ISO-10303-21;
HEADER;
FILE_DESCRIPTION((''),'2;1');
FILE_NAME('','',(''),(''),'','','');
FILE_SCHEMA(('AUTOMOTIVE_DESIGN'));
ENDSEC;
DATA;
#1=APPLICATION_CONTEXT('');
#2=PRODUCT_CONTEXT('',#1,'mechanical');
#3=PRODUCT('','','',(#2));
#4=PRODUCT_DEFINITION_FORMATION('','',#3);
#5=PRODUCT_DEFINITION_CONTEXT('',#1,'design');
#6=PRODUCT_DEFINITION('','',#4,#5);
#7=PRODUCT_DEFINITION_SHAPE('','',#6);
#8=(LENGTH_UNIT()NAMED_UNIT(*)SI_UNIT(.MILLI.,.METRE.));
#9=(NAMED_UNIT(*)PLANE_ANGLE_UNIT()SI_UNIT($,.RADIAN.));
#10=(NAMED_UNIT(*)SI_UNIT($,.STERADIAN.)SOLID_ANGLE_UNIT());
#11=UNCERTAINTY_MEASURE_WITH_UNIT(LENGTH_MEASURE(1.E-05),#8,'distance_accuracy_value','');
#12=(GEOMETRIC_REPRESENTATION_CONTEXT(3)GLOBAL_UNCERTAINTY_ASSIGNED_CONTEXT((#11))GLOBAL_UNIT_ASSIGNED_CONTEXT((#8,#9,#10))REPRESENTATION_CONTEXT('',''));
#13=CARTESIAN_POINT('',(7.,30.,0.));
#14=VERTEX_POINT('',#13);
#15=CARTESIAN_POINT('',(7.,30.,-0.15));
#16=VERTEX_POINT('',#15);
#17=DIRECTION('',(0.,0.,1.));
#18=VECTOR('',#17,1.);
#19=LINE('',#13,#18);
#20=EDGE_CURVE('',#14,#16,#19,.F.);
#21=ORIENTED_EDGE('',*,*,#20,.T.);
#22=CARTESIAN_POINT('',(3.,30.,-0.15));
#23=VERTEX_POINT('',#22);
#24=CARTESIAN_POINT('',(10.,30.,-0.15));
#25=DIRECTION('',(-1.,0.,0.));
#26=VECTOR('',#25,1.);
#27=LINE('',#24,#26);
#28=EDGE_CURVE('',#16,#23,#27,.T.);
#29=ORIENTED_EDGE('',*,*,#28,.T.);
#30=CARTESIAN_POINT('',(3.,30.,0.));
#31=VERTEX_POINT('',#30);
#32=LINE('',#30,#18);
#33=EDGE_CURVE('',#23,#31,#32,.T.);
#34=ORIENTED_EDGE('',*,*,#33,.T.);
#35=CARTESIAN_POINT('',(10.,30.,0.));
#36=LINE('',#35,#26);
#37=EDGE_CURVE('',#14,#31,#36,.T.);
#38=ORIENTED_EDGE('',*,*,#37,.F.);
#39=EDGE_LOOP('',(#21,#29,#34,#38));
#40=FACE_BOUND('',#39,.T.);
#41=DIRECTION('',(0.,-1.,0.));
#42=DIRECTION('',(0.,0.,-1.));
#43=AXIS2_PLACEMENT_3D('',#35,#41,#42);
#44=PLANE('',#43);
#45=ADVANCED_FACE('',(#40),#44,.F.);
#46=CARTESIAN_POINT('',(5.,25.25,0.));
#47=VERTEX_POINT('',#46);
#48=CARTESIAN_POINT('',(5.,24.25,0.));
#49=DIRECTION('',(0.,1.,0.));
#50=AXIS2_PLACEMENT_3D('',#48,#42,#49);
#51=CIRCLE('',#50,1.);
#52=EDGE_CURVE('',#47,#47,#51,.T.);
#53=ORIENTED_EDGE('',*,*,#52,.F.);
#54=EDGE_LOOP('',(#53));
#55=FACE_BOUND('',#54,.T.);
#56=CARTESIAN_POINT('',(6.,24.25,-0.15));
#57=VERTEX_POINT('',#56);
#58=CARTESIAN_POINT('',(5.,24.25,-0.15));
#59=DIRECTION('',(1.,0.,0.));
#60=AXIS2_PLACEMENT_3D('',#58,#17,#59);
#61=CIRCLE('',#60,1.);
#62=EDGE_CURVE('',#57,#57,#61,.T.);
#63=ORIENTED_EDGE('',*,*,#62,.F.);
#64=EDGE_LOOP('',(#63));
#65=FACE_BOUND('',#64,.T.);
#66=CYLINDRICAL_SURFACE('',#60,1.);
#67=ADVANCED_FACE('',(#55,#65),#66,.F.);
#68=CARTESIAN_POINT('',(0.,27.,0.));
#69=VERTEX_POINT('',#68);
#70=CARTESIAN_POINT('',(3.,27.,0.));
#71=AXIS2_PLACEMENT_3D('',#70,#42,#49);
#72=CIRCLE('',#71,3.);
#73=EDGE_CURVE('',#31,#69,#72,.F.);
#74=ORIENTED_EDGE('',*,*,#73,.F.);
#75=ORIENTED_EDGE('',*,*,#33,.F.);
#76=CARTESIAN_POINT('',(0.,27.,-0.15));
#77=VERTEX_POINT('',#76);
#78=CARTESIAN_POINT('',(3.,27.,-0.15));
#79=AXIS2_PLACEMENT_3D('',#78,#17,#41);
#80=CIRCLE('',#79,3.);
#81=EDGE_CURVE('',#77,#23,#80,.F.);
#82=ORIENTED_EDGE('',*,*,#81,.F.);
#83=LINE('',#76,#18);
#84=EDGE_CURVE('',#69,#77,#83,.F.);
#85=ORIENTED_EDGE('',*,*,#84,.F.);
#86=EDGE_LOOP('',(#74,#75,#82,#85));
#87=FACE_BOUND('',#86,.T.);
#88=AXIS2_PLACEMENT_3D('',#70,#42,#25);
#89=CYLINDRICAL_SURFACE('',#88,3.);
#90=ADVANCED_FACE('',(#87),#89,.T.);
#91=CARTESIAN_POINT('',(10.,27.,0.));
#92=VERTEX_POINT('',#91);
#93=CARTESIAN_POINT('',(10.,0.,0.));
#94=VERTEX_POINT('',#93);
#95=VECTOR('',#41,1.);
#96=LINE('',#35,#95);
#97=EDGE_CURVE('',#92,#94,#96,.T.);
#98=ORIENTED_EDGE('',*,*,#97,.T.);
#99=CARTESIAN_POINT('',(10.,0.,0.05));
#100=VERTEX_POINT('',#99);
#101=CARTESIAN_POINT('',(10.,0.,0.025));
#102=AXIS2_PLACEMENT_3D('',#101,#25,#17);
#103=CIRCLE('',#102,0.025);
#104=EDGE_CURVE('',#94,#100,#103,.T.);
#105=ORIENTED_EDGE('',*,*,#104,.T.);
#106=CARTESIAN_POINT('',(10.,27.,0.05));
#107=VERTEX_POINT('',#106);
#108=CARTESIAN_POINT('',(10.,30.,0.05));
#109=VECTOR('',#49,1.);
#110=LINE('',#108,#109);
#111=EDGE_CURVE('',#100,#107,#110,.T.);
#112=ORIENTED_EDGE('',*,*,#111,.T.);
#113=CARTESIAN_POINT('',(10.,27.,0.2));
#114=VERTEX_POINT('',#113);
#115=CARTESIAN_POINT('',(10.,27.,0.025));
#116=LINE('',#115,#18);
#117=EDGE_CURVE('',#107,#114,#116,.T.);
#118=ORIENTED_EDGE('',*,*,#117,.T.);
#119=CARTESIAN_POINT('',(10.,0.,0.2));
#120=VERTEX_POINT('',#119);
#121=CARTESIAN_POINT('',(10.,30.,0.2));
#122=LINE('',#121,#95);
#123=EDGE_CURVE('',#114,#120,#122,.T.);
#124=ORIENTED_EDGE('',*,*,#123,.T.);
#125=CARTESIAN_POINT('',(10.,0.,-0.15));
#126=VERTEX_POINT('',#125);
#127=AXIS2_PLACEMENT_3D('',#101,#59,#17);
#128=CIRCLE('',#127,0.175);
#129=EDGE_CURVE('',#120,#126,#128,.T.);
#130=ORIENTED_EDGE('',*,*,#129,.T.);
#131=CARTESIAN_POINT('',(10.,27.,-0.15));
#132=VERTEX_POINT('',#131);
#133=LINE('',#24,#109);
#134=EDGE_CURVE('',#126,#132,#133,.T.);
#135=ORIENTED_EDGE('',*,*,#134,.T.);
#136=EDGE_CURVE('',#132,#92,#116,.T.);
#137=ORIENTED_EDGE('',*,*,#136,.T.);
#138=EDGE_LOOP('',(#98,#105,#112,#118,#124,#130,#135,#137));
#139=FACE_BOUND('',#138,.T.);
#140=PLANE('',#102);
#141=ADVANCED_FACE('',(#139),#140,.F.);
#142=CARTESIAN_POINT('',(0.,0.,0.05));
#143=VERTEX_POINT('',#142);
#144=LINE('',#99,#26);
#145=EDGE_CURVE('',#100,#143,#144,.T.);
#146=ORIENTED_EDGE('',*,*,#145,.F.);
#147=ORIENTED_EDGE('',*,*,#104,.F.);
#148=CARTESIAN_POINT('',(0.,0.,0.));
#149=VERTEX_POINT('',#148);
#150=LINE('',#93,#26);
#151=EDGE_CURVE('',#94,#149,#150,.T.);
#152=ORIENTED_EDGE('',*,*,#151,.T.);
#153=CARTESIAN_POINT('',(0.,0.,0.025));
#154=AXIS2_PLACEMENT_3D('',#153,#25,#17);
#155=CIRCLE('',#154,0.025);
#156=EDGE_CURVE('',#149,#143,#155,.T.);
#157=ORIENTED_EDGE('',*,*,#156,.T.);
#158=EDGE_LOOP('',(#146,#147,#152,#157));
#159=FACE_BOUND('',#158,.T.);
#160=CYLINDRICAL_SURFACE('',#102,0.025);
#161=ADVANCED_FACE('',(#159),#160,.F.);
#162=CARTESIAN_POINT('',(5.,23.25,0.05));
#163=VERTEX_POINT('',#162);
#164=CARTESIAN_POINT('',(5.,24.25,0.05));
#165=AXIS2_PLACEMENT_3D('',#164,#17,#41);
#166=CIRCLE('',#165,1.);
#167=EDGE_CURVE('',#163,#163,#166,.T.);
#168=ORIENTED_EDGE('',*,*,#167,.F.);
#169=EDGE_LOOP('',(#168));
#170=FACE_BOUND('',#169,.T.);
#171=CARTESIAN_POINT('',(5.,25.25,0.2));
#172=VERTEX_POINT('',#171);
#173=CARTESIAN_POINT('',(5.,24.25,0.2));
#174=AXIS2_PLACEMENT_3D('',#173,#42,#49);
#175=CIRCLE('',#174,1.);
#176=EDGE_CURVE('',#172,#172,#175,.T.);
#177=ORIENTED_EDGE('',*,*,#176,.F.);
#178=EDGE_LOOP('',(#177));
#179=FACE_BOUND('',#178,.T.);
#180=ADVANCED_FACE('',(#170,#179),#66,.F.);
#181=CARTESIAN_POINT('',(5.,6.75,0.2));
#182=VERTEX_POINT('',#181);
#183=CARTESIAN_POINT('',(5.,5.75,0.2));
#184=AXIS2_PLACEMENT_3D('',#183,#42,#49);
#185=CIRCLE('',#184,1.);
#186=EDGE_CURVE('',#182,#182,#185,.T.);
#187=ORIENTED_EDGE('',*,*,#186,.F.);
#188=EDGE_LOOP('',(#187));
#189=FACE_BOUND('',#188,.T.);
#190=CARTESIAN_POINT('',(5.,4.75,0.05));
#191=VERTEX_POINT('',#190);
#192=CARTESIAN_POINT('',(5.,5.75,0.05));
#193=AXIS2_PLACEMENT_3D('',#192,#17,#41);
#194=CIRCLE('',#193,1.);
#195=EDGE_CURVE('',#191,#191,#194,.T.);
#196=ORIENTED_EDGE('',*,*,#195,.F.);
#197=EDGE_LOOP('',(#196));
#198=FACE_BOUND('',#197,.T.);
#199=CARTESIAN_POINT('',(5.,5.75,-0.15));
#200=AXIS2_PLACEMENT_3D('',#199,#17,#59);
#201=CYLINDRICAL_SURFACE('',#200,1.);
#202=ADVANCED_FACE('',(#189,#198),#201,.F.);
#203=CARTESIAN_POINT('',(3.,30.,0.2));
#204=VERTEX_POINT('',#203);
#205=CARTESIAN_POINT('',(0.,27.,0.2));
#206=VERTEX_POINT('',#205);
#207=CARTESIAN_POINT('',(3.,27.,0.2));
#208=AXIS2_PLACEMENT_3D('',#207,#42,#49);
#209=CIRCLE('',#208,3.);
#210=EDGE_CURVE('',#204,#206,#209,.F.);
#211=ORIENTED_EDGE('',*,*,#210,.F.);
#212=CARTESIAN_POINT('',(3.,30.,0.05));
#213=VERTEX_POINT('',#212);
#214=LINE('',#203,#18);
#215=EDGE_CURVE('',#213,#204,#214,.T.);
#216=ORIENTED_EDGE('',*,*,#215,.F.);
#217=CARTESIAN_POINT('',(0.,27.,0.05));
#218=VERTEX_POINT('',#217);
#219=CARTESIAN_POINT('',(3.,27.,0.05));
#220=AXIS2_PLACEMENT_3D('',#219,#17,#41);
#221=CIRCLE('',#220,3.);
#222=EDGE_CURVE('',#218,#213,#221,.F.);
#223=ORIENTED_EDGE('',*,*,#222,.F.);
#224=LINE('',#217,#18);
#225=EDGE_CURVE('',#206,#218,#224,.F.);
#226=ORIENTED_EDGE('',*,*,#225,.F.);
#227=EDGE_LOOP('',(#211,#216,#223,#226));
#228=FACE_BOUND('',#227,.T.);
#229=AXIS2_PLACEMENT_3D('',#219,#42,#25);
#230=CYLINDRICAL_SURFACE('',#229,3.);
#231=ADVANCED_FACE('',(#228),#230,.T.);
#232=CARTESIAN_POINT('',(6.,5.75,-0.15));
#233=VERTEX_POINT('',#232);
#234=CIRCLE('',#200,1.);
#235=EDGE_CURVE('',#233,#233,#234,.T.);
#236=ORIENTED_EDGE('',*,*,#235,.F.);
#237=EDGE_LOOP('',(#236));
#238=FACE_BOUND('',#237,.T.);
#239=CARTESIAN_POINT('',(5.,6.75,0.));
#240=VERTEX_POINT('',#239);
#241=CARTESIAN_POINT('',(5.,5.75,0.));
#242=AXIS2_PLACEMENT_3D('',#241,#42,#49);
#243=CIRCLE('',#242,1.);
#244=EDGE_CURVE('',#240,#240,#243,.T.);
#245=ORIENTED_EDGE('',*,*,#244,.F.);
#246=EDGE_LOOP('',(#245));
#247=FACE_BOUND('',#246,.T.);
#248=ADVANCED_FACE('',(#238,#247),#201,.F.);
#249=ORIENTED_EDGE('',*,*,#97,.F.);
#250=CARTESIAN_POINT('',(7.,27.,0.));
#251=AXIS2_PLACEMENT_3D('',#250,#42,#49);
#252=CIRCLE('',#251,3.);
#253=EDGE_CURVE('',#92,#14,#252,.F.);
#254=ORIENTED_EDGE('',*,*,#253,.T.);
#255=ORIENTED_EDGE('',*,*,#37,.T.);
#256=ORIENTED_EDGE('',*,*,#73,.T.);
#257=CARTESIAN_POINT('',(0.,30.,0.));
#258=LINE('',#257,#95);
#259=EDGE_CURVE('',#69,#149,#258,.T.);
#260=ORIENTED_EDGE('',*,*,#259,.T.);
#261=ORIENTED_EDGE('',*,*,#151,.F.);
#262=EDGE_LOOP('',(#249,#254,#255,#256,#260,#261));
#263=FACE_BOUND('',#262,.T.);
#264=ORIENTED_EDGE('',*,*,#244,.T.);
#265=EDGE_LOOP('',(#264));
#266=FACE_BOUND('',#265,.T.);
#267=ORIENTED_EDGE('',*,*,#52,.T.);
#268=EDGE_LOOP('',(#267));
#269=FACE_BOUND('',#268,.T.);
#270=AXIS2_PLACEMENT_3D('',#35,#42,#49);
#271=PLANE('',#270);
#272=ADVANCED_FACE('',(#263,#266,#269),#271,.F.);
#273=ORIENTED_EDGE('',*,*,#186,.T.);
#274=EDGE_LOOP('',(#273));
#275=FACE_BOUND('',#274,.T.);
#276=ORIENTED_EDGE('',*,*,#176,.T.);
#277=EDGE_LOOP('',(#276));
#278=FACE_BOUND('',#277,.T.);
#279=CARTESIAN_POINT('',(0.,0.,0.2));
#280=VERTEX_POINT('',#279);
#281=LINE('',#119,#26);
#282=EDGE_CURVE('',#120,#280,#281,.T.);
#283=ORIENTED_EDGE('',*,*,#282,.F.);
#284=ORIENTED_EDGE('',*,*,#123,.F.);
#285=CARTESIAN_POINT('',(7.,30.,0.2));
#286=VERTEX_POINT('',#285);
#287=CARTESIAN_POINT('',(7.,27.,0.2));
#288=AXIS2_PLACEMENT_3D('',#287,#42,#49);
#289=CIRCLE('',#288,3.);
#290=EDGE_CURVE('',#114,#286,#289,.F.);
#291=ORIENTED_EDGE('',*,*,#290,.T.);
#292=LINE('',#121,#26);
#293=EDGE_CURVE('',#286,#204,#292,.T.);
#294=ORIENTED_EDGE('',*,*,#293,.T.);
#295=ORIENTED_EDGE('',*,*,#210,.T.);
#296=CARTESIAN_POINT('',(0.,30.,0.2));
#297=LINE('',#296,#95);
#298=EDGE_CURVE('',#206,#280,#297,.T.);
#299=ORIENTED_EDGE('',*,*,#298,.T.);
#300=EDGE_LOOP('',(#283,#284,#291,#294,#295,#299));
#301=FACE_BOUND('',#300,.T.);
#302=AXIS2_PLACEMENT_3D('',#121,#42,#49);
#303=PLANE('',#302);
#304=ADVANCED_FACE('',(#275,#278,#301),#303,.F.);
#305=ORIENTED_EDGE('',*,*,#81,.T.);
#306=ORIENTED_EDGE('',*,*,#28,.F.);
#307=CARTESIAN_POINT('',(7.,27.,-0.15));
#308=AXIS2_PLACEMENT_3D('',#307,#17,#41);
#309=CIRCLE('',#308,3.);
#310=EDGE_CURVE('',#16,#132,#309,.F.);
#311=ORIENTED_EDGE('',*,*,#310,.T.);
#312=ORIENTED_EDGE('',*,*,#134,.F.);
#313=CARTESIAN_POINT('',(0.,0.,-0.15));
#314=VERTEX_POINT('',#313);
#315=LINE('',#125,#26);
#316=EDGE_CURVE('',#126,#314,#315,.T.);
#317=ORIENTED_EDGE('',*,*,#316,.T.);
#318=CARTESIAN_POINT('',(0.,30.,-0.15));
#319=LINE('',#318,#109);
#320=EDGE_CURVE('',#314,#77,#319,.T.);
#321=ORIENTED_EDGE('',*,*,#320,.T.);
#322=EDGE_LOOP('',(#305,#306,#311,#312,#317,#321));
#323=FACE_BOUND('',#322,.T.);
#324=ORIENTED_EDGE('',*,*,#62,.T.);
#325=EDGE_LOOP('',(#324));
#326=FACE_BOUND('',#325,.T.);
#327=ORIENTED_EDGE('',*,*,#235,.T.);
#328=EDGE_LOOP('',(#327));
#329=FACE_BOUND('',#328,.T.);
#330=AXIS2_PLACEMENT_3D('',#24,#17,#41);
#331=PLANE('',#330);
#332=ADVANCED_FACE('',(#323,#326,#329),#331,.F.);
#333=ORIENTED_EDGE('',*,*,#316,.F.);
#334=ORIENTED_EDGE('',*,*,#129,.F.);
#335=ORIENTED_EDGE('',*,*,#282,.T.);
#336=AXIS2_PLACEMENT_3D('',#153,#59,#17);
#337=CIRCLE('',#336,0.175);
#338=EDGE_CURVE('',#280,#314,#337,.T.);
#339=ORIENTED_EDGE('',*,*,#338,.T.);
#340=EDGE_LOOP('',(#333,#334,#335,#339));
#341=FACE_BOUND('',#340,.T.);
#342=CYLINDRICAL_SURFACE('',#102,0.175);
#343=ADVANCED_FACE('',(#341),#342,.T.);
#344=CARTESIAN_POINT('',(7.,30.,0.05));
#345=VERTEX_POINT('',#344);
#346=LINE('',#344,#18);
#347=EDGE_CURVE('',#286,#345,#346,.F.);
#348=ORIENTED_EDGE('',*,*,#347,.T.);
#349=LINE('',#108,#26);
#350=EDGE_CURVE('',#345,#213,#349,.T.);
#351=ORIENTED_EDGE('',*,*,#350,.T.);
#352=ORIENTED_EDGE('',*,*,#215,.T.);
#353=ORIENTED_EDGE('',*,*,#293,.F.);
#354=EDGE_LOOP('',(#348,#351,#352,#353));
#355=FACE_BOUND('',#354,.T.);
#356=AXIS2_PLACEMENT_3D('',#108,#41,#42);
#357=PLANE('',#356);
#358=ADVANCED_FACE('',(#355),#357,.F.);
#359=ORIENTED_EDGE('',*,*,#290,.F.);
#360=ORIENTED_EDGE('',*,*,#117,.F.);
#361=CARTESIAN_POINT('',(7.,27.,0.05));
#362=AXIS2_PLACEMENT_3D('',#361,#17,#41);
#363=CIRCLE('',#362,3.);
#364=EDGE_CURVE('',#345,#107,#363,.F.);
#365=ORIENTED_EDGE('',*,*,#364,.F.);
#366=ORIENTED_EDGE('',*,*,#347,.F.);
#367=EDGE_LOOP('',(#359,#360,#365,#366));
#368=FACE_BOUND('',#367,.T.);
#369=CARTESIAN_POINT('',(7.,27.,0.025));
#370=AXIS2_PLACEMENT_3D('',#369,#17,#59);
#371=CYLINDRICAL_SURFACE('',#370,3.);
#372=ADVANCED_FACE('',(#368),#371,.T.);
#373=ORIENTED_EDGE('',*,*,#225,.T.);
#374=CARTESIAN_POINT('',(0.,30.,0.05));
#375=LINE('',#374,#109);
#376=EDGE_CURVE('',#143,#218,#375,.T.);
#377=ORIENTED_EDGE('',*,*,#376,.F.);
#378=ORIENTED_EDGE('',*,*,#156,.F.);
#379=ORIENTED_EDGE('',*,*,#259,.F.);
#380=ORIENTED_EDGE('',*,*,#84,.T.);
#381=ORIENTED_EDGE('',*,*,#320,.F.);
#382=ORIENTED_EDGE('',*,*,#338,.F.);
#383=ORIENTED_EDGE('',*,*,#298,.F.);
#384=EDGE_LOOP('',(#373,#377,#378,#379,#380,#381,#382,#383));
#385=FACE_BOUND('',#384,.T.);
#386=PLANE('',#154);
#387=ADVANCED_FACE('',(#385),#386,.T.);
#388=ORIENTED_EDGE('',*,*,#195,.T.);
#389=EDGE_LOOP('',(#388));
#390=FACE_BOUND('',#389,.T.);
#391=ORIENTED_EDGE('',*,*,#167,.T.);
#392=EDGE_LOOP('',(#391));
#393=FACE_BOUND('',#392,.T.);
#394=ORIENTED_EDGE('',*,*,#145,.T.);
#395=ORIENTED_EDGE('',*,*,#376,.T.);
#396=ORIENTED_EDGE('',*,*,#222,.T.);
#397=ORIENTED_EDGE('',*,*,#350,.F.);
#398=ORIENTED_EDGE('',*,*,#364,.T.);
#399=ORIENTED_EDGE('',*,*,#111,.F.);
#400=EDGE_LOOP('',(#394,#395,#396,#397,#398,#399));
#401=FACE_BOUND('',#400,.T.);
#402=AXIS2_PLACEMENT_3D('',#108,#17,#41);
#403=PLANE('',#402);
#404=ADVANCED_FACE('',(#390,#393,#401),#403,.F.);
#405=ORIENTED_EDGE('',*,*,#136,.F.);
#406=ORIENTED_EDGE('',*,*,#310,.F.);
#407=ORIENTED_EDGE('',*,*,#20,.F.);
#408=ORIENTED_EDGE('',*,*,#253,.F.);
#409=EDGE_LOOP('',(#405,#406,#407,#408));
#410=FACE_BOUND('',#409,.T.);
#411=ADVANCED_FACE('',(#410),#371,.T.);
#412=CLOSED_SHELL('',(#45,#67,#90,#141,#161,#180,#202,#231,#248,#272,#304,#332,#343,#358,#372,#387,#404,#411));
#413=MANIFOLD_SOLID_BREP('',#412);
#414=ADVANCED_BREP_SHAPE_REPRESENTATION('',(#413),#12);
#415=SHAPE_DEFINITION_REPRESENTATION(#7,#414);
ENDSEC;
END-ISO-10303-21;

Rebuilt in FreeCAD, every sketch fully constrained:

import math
import FreeCAD as App
import Part
import Sketcher
Q = App.Units.Quantity


def edges_at(feature, points):
    """Names of the edges that pass closest to the given points."""
    edges = feature.Shape.Edges
    near = lambda p: min(range(len(edges)), key=lambda i: edges[i].distToShape(Part.Vertex(*p))[0])
    return sorted({f"Edge{near(p) + 1}" for p in points})

doc = App.newDocument("Part")
params = doc.addObject("Spreadsheet::Sheet", "Params")
for row, (alias, value) in enumerate([
    ("sketch1_width", "30 mm"),
    ("pad1_length", "10 mm"),
    ("fillet_radius", "3 mm"),
    ("sketch2_diameter", "2 mm"),
], start=1):
    params.set(f"A{row}", alias)
    params.set(f"B{row}", "=" + value)
    params.setAlias(f"B{row}", alias)

body = doc.addObject("PartDesign::Body", "Body")

sketch1 = body.newObject("Sketcher::SketchObject", "Sketch")
sketch1.AttachmentSupport = (doc.getObject("YZ_Plane"), [""])
sketch1.MapMode = "FlatFace"
sketch1.addGeometry(Part.LineSegment(App.Vector(30, 0, 0), App.Vector(0, 0, 0)), False)
sketch1.addGeometry(Part.ArcOfCircle(Part.Circle(App.Vector(0, 0.025, 0), App.Vector(0, 0, 1), 0.025), math.radians(90), math.radians(270)), False)
sketch1.addGeometry(Part.LineSegment(App.Vector(0, 0.05, 0), App.Vector(30, 0.05, 0)), False)
sketch1.addGeometry(Part.LineSegment(App.Vector(30, 0.05, 0), App.Vector(30, 0.2, 0)), False)
sketch1.addGeometry(Part.LineSegment(App.Vector(30, 0.2, 0), App.Vector(0, 0.2, 0)), False)
sketch1.addGeometry(Part.ArcOfCircle(Part.Circle(App.Vector(0, 0.025, 0), App.Vector(0, 0, 1), 0.175), math.radians(90), math.radians(270)), False)
sketch1.addGeometry(Part.LineSegment(App.Vector(0, -0.15, 0), App.Vector(30, -0.15, 0)), False)
sketch1.addGeometry(Part.LineSegment(App.Vector(30, -0.15, 0), App.Vector(30, 0, 0)), False)
sketch1.addConstraint(Sketcher.Constraint("Tangent", 0, 2, 1, 2))
sketch1.addConstraint(Sketcher.Constraint("Tangent", 1, 1, 2, 1))
sketch1.addConstraint(Sketcher.Constraint("Coincident", 2, 2, 3, 1))
sketch1.addConstraint(Sketcher.Constraint("Coincident", 3, 2, 4, 1))
sketch1.addConstraint(Sketcher.Constraint("Tangent", 4, 2, 5, 1))
sketch1.addConstraint(Sketcher.Constraint("Tangent", 5, 2, 6, 1))
sketch1.addConstraint(Sketcher.Constraint("Coincident", 6, 2, 7, 1))
sketch1.addConstraint(Sketcher.Constraint("Coincident", 7, 2, 0, 1))
sketch1.addConstraint(Sketcher.Constraint("Horizontal", 0))
sketch1.addConstraint(Sketcher.Constraint("Horizontal", 2))
sketch1.addConstraint(Sketcher.Constraint("Vertical", 3))
sketch1.addConstraint(Sketcher.Constraint("Horizontal", 4))
sketch1.addConstraint(Sketcher.Constraint("Horizontal", 6))
sketch1.addConstraint(Sketcher.Constraint("Vertical", 7))
sketch1.addConstraint(Sketcher.Constraint("Coincident", 0, 2, -1, 1))
sketch1.addConstraint(Sketcher.Constraint("Coincident", 5, 3, 1, 3))
sketch1.addConstraint(Sketcher.Constraint("Vertical", 3, 2, 6, 2))
sketch1.addConstraint(Sketcher.Constraint("DistanceX", 0, 2, 0, 1, Q("30 mm")))
sketch1.addConstraint(Sketcher.Constraint("Radius", 1, Q("0.025 mm")))
sketch1.addConstraint(Sketcher.Constraint("Radius", 5, Q("0.175 mm")))
sketch1.setExpression("Constraints[17]", "Params.sketch1_width")
pad1 = body.newObject("PartDesign::Pad", "Pad")
pad1.Profile = sketch1
pad1.setExpression("Length", "Params.pad1_length")
doc.recompute()

fillet = body.newObject("PartDesign::Fillet", "Fillet")
fillet.Base = (pad1, edges_at(pad1, [
    (0, 30, -0.075),
    (10, 30, 0.125),
    (10, 30, -0.075),
    (0, 30, 0.125),
]))
fillet.setExpression("Radius", "Params.fillet_radius")

sketch2 = body.newObject("Sketcher::SketchObject", "Sketch001")
sketch2.AttachmentSupport = (doc.getObject("XY_Plane"), [""])
sketch2.MapMode = "FlatFace"
sketch2.AttachmentOffset = App.Placement(App.Vector(0, 0, 0.2), App.Rotation())
sketch2.addGeometry(Part.Circle(App.Vector(5, 24.2, 0), App.Vector(0, 0, 1), 1), False)
sketch2.addGeometry(Part.Circle(App.Vector(5, 5.8, 0), App.Vector(0, 0, 1), 1), False)
sketch2.addConstraint(Sketcher.Constraint("Equal", 0, 1))
sketch2.addConstraint(Sketcher.Constraint("Vertical", 0, 3, 1, 3))
sketch2.addConstraint(Sketcher.Constraint("Diameter", 0, Q("2 mm")))
sketch2.addConstraint(Sketcher.Constraint("DistanceX", -1, 1, 0, 3, Q("5 mm")))
sketch2.addConstraint(Sketcher.Constraint("DistanceY", 1, 3, 0, 3, Q("18.5 mm")))
sketch2.addConstraint(Sketcher.Constraint("DistanceY", -1, 1, 0, 3, Q("24.25 mm")))
sketch2.setExpression("Constraints[2]", "Params.sketch2_diameter")
pocket1 = body.newObject("PartDesign::Pocket", "Pocket")
pocket1.Profile = sketch2
pocket1.Type = "ThroughAll"
pocket1.Midplane = True

doc.recompute()
